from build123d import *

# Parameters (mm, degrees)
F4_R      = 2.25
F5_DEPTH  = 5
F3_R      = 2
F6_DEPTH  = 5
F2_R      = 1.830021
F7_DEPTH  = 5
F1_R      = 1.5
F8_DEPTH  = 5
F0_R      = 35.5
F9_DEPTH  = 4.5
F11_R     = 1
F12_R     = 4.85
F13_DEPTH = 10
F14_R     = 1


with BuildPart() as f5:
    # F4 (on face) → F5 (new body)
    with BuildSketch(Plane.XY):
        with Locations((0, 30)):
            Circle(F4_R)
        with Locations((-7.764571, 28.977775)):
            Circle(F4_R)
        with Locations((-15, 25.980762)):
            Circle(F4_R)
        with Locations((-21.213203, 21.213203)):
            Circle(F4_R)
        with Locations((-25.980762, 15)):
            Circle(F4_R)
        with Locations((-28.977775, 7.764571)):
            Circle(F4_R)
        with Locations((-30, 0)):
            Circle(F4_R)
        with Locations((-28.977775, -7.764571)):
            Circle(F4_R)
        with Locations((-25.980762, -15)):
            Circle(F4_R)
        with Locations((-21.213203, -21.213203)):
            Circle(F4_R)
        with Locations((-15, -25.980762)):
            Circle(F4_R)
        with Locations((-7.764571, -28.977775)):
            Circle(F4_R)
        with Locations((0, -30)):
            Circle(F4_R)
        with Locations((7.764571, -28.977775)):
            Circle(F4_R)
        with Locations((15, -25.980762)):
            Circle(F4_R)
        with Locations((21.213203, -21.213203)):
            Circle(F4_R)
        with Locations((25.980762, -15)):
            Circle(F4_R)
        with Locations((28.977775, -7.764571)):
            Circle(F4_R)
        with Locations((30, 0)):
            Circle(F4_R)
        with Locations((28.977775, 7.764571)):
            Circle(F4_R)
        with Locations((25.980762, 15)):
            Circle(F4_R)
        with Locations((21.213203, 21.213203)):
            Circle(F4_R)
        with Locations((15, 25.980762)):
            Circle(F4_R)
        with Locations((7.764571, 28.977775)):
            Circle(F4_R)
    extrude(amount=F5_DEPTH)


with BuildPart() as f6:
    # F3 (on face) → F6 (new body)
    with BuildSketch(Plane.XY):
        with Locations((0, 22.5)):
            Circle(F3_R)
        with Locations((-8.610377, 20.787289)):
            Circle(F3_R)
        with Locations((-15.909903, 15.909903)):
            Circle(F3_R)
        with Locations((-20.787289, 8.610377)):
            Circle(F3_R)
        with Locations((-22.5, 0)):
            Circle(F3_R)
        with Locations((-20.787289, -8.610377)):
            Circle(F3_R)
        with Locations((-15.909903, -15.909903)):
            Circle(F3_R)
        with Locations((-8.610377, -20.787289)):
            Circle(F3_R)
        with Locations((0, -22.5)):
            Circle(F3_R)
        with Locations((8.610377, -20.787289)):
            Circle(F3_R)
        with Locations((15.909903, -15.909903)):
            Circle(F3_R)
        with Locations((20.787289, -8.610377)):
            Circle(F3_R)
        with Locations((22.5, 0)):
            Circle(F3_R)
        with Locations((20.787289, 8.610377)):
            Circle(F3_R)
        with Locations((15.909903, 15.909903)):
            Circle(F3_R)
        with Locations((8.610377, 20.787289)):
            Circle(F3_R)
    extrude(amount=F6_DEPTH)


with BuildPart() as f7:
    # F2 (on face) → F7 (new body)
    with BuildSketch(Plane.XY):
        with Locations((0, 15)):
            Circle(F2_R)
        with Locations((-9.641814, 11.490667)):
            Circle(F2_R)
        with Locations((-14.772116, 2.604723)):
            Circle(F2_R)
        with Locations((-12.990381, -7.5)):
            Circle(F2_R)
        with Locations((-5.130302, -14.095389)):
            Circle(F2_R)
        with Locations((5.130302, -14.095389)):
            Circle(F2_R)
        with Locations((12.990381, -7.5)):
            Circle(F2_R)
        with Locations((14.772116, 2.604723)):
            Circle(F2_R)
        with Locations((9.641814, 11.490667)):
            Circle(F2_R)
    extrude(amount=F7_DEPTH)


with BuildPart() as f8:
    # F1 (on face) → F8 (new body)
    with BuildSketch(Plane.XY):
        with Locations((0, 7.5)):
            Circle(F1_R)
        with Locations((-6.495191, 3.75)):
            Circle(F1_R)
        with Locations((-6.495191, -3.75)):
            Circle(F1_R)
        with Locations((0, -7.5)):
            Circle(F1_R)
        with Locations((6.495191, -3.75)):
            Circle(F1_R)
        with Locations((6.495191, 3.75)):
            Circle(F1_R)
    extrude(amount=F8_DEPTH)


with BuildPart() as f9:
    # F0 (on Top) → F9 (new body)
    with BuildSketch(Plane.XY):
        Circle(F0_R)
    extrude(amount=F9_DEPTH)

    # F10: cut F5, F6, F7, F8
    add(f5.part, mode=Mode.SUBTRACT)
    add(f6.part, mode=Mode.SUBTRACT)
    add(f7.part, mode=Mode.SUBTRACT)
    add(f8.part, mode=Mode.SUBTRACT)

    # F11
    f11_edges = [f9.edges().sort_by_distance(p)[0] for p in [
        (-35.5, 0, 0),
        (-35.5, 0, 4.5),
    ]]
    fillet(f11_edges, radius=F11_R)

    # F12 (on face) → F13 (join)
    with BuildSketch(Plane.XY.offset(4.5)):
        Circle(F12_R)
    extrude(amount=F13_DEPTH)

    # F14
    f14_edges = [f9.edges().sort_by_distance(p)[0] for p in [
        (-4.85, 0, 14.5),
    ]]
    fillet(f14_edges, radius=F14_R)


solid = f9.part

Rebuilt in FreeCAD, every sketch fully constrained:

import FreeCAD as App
import Part
import Sketcher
Q = App.Units.Quantity


def edges_at(feature, points):
    """Names of the edges that pass closest to the given points."""
    edges = feature.Shape.Edges
    near = lambda p: min(range(len(edges)), key=lambda i: edges[i].distToShape(Part.Vertex(*p))[0])
    return sorted({f"Edge{near(p) + 1}" for p in points})

doc = App.newDocument("Part")
body = doc.addObject("PartDesign::Body", "Body")
body.AllowCompound = True

# Sketch on XY plane
sketch1 = body.newObject("Sketcher::SketchObject", "Sketch")
sketch1.AttachmentSupport = (doc.getObject("XY_Plane"), [""])
sketch1.MapMode = "FlatFace"
sketch1.addGeometry([
    Part.Circle(App.Vector(0, 30, 0), App.Vector(0, 0, 1), 2.2),  # 0
    Part.Circle(App.Vector(-7.8, 29, 0), App.Vector(0, 0, 1), 2.2),  # 1
    Part.Circle(App.Vector(-15, 26, 0), App.Vector(0, 0, 1), 2.2),  # 2
    Part.Circle(App.Vector(-21.2, 21.2, 0), App.Vector(0, 0, 1), 2.2),  # 3
    Part.Circle(App.Vector(-26, 15, 0), App.Vector(0, 0, 1), 2.2),  # 4
    Part.Circle(App.Vector(-29, 7.8, 0), App.Vector(0, 0, 1), 2.2),  # 5
    Part.Circle(App.Vector(-30, 0, 0), App.Vector(0, 0, 1), 2.2),  # 6
    Part.Circle(App.Vector(-29, -7.8, 0), App.Vector(0, 0, 1), 2.2),  # 7
    Part.Circle(App.Vector(-26, -15, 0), App.Vector(0, 0, 1), 2.2),  # 8
    Part.Circle(App.Vector(-21.2, -21.2, 0), App.Vector(0, 0, 1), 2.2),  # 9
    Part.Circle(App.Vector(-15, -26, 0), App.Vector(0, 0, 1), 2.2),  # 10
    Part.Circle(App.Vector(-7.8, -29, 0), App.Vector(0, 0, 1), 2.2),  # 11
    Part.Circle(App.Vector(0, -30, 0), App.Vector(0, 0, 1), 2.2),  # 12
    Part.Circle(App.Vector(7.8, -29, 0), App.Vector(0, 0, 1), 2.2),  # 13
    Part.Circle(App.Vector(15, -26, 0), App.Vector(0, 0, 1), 2.2),  # 14
    Part.Circle(App.Vector(21.2, -21.2, 0), App.Vector(0, 0, 1), 2.2),  # 15
    Part.Circle(App.Vector(26, -15, 0), App.Vector(0, 0, 1), 2.2),  # 16
    Part.Circle(App.Vector(29, -7.8, 0), App.Vector(0, 0, 1), 2.2),  # 17
    Part.Circle(App.Vector(30, 0, 0), App.Vector(0, 0, 1), 2.2),  # 18
    Part.Circle(App.Vector(29, 7.8, 0), App.Vector(0, 0, 1), 2.2),  # 19
    Part.Circle(App.Vector(26, 15, 0), App.Vector(0, 0, 1), 2.2),  # 20
    Part.Circle(App.Vector(21.2, 21.2, 0), App.Vector(0, 0, 1), 2.2),  # 21
    Part.Circle(App.Vector(15, 26, 0), App.Vector(0, 0, 1), 2.2),  # 22
    Part.Circle(App.Vector(7.8, 29, 0), App.Vector(0, 0, 1), 2.2),  # 23
], False)
sketch1.addConstraint([
    Sketcher.Constraint("Equal", 0, 1),
    Sketcher.Constraint("Equal", 1, 2),
    Sketcher.Constraint("Equal", 2, 3),
    Sketcher.Constraint("Equal", 3, 4),
    Sketcher.Constraint("Equal", 4, 5),
    Sketcher.Constraint("Equal", 5, 6),
    Sketcher.Constraint("Equal", 6, 7),
    Sketcher.Constraint("Equal", 7, 8),
    Sketcher.Constraint("Equal", 8, 9),
    Sketcher.Constraint("Equal", 9, 10),
    Sketcher.Constraint("Equal", 10, 11),
    Sketcher.Constraint("Equal", 11, 12),
    Sketcher.Constraint("Equal", 12, 13),
    Sketcher.Constraint("Equal", 13, 14),
    Sketcher.Constraint("Equal", 14, 15),
    Sketcher.Constraint("Equal", 15, 16),
    Sketcher.Constraint("Equal", 16, 17),
    Sketcher.Constraint("Equal", 17, 18),
    Sketcher.Constraint("Equal", 18, 19),
    Sketcher.Constraint("Equal", 19, 20),
    Sketcher.Constraint("Equal", 20, 21),
    Sketcher.Constraint("Equal", 21, 22),
    Sketcher.Constraint("Equal", 22, 23),
    Sketcher.Constraint("Symmetric", 0, 3, 12, 3, -1, 1),
    Sketcher.Constraint("Symmetric", 1, 3, 13, 3, -1, 1),
    Sketcher.Constraint("Symmetric", 2, 3, 14, 3, -1, 1),
    Sketcher.Constraint("Symmetric", 3, 3, 15, 3, -1, 1),
    Sketcher.Constraint("Symmetric", 4, 3, 16, 3, -1, 1),
    Sketcher.Constraint("Symmetric", 5, 3, 17, 3, -1, 1),
    Sketcher.Constraint("Symmetric", 6, 3, 18, 3, -1, 1),
    Sketcher.Constraint("Symmetric", 7, 3, 19, 3, -1, 1),
    Sketcher.Constraint("Symmetric", 8, 3, 20, 3, -1, 1),
    Sketcher.Constraint("Symmetric", 9, 3, 21, 3, -1, 1),
    Sketcher.Constraint("Symmetric", 10, 3, 22, 3, -1, 1),
    Sketcher.Constraint("Symmetric", 11, 3, 23, 3, -1, 1),
    Sketcher.Constraint("Symmetric", 11, 3, 13, 3, -2),
    Sketcher.Constraint("Symmetric", 10, 3, 14, 3, -2),
    Sketcher.Constraint("Symmetric", 9, 3, 15, 3, -2),
    Sketcher.Constraint("Symmetric", 8, 3, 16, 3, -2),
    Sketcher.Constraint("Symmetric", 7, 3, 17, 3, -2),
    Sketcher.Constraint("PointOnObject", 0, 3, -2),
    Sketcher.Constraint("PointOnObject", 6, 3, -1),
    Sketcher.Constraint("Diameter", 0, Q("4.5 mm")),
    Sketcher.Constraint("DistanceY", -1, 1, 0, 3, Q("30 mm")),
    Sketcher.Constraint("DistanceX", 2, 3, -1, 1, Q("15 mm")),
    Sketcher.Constraint("DistanceY", -1, 1, 4, 3, Q("15 mm")),
    Sketcher.Constraint("DistanceX", 6, 3, -1, 1, Q("30 mm")),
    Sketcher.Constraint("DistanceX", 1, 3, -1, 1, Q("7.764571 mm")),
    Sketcher.Constraint("DistanceY", -1, 1, 2, 3, Q("25.980762 mm")),
    Sketcher.Constraint("DistanceX", 4, 3, -1, 1, Q("25.980762 mm")),
    Sketcher.Constraint("DistanceY", -1, 1, 5, 3, Q("7.764571 mm")),
    Sketcher.Constraint("DistanceY", 3, 3, 2, 3, Q("4.767559 mm")),
    Sketcher.Constraint("DistanceX", 4, 3, 3, 3, Q("4.767559 mm")),
    Sketcher.Constraint("DistanceY", -1, 1, 1, 3, Q("28.977775 mm")),
    Sketcher.Constraint("DistanceX", 5, 3, -1, 1, Q("28.977775 mm")),
])
pad1 = body.newObject("PartDesign::Pad", "Pad")
pad1.Profile = sketch1
pad1.Length = 5
body2 = doc.addObject("PartDesign::Body", "Body001")
body2.AllowCompound = True

# Sketch on XY plane
sketch2 = body2.newObject("Sketcher::SketchObject", "Sketch001")
sketch2.AttachmentSupport = (doc.getObject("XY_Plane001"), [""])
sketch2.MapMode = "FlatFace"
sketch2.addGeometry([
    Part.Circle(App.Vector(0, 22.5, 0), App.Vector(0, 0, 1), 2),  # 0
    Part.Circle(App.Vector(-8.6, 20.8, 0), App.Vector(0, 0, 1), 2),  # 1
    Part.Circle(App.Vector(-15.9, 15.9, 0), App.Vector(0, 0, 1), 2),  # 2
    Part.Circle(App.Vector(-20.8, 8.6, 0), App.Vector(0, 0, 1), 2),  # 3
    Part.Circle(App.Vector(-22.5, 0, 0), App.Vector(0, 0, 1), 2),  # 4
    Part.Circle(App.Vector(-20.8, -8.6, 0), App.Vector(0, 0, 1), 2),  # 5
    Part.Circle(App.Vector(-15.9, -15.9, 0), App.Vector(0, 0, 1), 2),  # 6
    Part.Circle(App.Vector(-8.6, -20.8, 0), App.Vector(0, 0, 1), 2),  # 7
    Part.Circle(App.Vector(0, -22.5, 0), App.Vector(0, 0, 1), 2),  # 8
    Part.Circle(App.Vector(8.6, -20.8, 0), App.Vector(0, 0, 1), 2),  # 9
    Part.Circle(App.Vector(15.9, -15.9, 0), App.Vector(0, 0, 1), 2),  # 10
    Part.Circle(App.Vector(20.8, -8.6, 0), App.Vector(0, 0, 1), 2),  # 11
    Part.Circle(App.Vector(22.5, 0, 0), App.Vector(0, 0, 1), 2),  # 12
    Part.Circle(App.Vector(20.8, 8.6, 0), App.Vector(0, 0, 1), 2),  # 13
    Part.Circle(App.Vector(15.9, 15.9, 0), App.Vector(0, 0, 1), 2),  # 14
    Part.Circle(App.Vector(8.6, 20.8, 0), App.Vector(0, 0, 1), 2),  # 15
], False)
sketch2.addConstraint([
    Sketcher.Constraint("Equal", 0, 1),
    Sketcher.Constraint("Equal", 1, 2),
    Sketcher.Constraint("Equal", 2, 3),
    Sketcher.Constraint("Equal", 3, 4),
    Sketcher.Constraint("Equal", 4, 5),
    Sketcher.Constraint("Equal", 5, 6),
    Sketcher.Constraint("Equal", 6, 7),
    Sketcher.Constraint("Equal", 7, 8),
    Sketcher.Constraint("Equal", 8, 9),
    Sketcher.Constraint("Equal", 9, 10),
    Sketcher.Constraint("Equal", 10, 11),
    Sketcher.Constraint("Equal", 11, 12),
    Sketcher.Constraint("Equal", 12, 13),
    Sketcher.Constraint("Equal", 13, 14),
    Sketcher.Constraint("Equal", 14, 15),
    Sketcher.Constraint("Symmetric", 0, 3, 8, 3, -1, 1),
    Sketcher.Constraint("Symmetric", 1, 3, 9, 3, -1, 1),
    Sketcher.Constraint("Symmetric", 2, 3, 10, 3, -1, 1),
    Sketcher.Constraint("Symmetric", 3, 3, 11, 3, -1, 1),
    Sketcher.Constraint("Symmetric", 4, 3, 12, 3, -1, 1),
    Sketcher.Constraint("Symmetric", 5, 3, 13, 3, -1, 1),
    Sketcher.Constraint("Symmetric", 6, 3, 14, 3, -1, 1),
    Sketcher.Constraint("Symmetric", 7, 3, 15, 3, -1, 1),
    Sketcher.Constraint("Symmetric", 7, 3, 9, 3, -2),
    Sketcher.Constraint("Symmetric", 6, 3, 10, 3, -2),
    Sketcher.Constraint("Symmetric", 5, 3, 11, 3, -2),
    Sketcher.Constraint("PointOnObject", 0, 3, -2),
    Sketcher.Constraint("PointOnObject", 4, 3, -1),
    Sketcher.Constraint("Diameter", 0, Q("4 mm")),
    Sketcher.Constraint("DistanceY", -1, 1, 0, 3, Q("22.5 mm")),
    Sketcher.Constraint("DistanceX", 4, 3, -1, 1, Q("22.5 mm")),
    Sketcher.Constraint("DistanceY", -1, 1, 1, 3, Q("20.787289 mm")),
    Sketcher.Constraint("DistanceX", 3, 3, -1, 1, Q("20.787289 mm")),
    Sketcher.Constraint("DistanceY", 5, 3, 2, 3, Q("24.52028 mm")),
    Sketcher.Constraint("DistanceX", 6, 3, 9, 3, Q("24.52028 mm")),
    Sketcher.Constraint("DistanceX", 1, 3, -1, 1, Q("8.610377 mm")),
    Sketcher.Constraint("DistanceY", -1, 1, 2, 3, Q("15.909903 mm")),
])
pad2 = body2.newObject("PartDesign::Pad", "Pad001")
pad2.Profile = sketch2
pad2.Length = 5
body3 = doc.addObject("PartDesign::Body", "Body002")
body3.AllowCompound = True

# Sketch on XY plane
sketch3 = body3.newObject("Sketcher::SketchObject", "Sketch002")
sketch3.AttachmentSupport = (doc.getObject("XY_Plane002"), [""])
sketch3.MapMode = "FlatFace"
sketch3.addGeometry([
    Part.Circle(App.Vector(0, 15, 0), App.Vector(0, 0, 1), 1.8),  # 0
    Part.Circle(App.Vector(-9.6, 11.5, 0), App.Vector(0, 0, 1), 1.8),  # 1
    Part.Circle(App.Vector(-14.8, 2.6, 0), App.Vector(0, 0, 1), 1.8),  # 2
    Part.Circle(App.Vector(-13, -7.5, 0), App.Vector(0, 0, 1), 1.8),  # 3
    Part.Circle(App.Vector(-5.1, -14.1, 0), App.Vector(0, 0, 1), 1.8),  # 4
    Part.Circle(App.Vector(5.1, -14.1, 0), App.Vector(0, 0, 1), 1.8),  # 5
    Part.Circle(App.Vector(13, -7.5, 0), App.Vector(0, 0, 1), 1.8),  # 6
    Part.Circle(App.Vector(14.8, 2.6, 0), App.Vector(0, 0, 1), 1.8),  # 7
    Part.Circle(App.Vector(9.6, 11.5, 0), App.Vector(0, 0, 1), 1.8),  # 8
], False)
sketch3.addConstraint([
    Sketcher.Constraint("Equal", 0, 1),
    Sketcher.Constraint("Equal", 1, 2),
    Sketcher.Constraint("Equal", 2, 3),
    Sketcher.Constraint("Equal", 3, 4),
    Sketcher.Constraint("Equal", 4, 5),
    Sketcher.Constraint("Equal", 5, 6),
    Sketcher.Constraint("Equal", 6, 7),
    Sketcher.Constraint("Equal", 7, 8),
    Sketcher.Constraint("Symmetric", 4, 3, 5, 3, -2),
    Sketcher.Constraint("Symmetric", 3, 3, 6, 3, -2),
    Sketcher.Constraint("Symmetric", 2, 3, 7, 3, -2),
    Sketcher.Constraint("Symmetric", 1, 3, 8, 3, -2),
    Sketcher.Constraint("PointOnObject", 0, 3, -2),
    Sketcher.Constraint("DistanceY", -1, 1, 0, 3, Q("15 mm")),
    Sketcher.Constraint("DistanceY", 3, 3, -1, 1, Q("7.5 mm")),
    Sketcher.Constraint("Diameter", 0, Q("3.660042 mm")),
    Sketcher.Constraint("DistanceX", 3, 3, -1, 1, Q("12.990381 mm")),
    Sketcher.Constraint("DistanceY", 4, 3, -1, 1, Q("14.095389 mm")),
    Sketcher.Constraint("DistanceX", 3, 3, 4, 3, Q("7.860079 mm")),
    Sketcher.Constraint("DistanceX", 1, 3, 4, 3, Q("4.511512 mm")),
    Sketcher.Constraint("DistanceX", 2, 3, 5, 3, Q("19.902418 mm")),
    Sketcher.Constraint("DistanceY", -1, 1, 1, 3, Q("11.490667 mm")),
    Sketcher.Constraint("DistanceY", -1, 1, 2, 3, Q("2.604723 mm")),
])
pad3 = body3.newObject("PartDesign::Pad", "Pad002")
pad3.Profile = sketch3
pad3.Length = 5
body4 = doc.addObject("PartDesign::Body", "Body003")
body4.AllowCompound = True

# Sketch on XY plane
sketch4 = body4.newObject("Sketcher::SketchObject", "Sketch003")
sketch4.AttachmentSupport = (doc.getObject("XY_Plane003"), [""])
sketch4.MapMode = "FlatFace"
sketch4.addGeometry([
    Part.Circle(App.Vector(0, 7.5, 0), App.Vector(0, 0, 1), 1.5),  # 0
    Part.Circle(App.Vector(-6.5, 3.8, 0), App.Vector(0, 0, 1), 1.5),  # 1
    Part.Circle(App.Vector(-6.5, -3.8, 0), App.Vector(0, 0, 1), 1.5),  # 2
    Part.Circle(App.Vector(0, -7.5, 0), App.Vector(0, 0, 1), 1.5),  # 3
    Part.Circle(App.Vector(6.5, -3.8, 0), App.Vector(0, 0, 1), 1.5),  # 4
    Part.Circle(App.Vector(6.5, 3.8, 0), App.Vector(0, 0, 1), 1.5),  # 5
], False)
sketch4.addConstraint([
    Sketcher.Constraint("Equal", 0, 1),
    Sketcher.Constraint("Equal", 1, 2),
    Sketcher.Constraint("Equal", 2, 3),
    Sketcher.Constraint("Equal", 3, 4),
    Sketcher.Constraint("Equal", 4, 5),
    Sketcher.Constraint("Symmetric", 0, 3, 3, 3, -1, 1),
    Sketcher.Constraint("Symmetric", 1, 3, 4, 3, -1, 1),
    Sketcher.Constraint("Symmetric", 2, 3, 5, 3, -1, 1),
    Sketcher.Constraint("Symmetric", 2, 3, 4, 3, -2),
    Sketcher.Constraint("PointOnObject", 0, 3, -2),
    Sketcher.Constraint("Diameter", 0, Q("3 mm")),
    Sketcher.Constraint("DistanceY", 3, 3, 0, 3, Q("15 mm")),
    Sketcher.Constraint("DistanceY", 2, 3, 1, 3, Q("7.5 mm")),
    Sketcher.Constraint("DistanceX", 1, 3, -1, 1, Q("6.495191 mm")),
])
pad4 = body4.newObject("PartDesign::Pad", "Pad003")
pad4.Profile = sketch4
pad4.Length = 5
body5 = doc.addObject("PartDesign::Body", "Body004")

# Sketch on XY plane
sketch5 = body5.newObject("Sketcher::SketchObject", "Sketch004")
sketch5.AttachmentSupport = (doc.getObject("XY_Plane004"), [""])
sketch5.MapMode = "FlatFace"
sketch5.addGeometry(Part.Circle(App.Vector(0, 0, 0), App.Vector(0, 0, 1), 36), False)
sketch5.addConstraint([
    Sketcher.Constraint("Coincident", 0, 3, -1, 1),
    Sketcher.Constraint("Diameter", 0, Q("71 mm")),
])
pad5 = body5.newObject("PartDesign::Pad", "Pad004")
pad5.Profile = sketch5
pad5.Length = 4.5
doc.recompute()

boolean = body5.newObject("PartDesign::Boolean", "Boolean")
boolean.Type = "Cut"
boolean.addObjects([body])
doc.recompute()

boolean2 = body5.newObject("PartDesign::Boolean", "Boolean001")
boolean2.Type = "Cut"
boolean2.addObjects([body2])
doc.recompute()

boolean3 = body5.newObject("PartDesign::Boolean", "Boolean002")
boolean3.Type = "Cut"
boolean3.addObjects([body3])
doc.recompute()

boolean4 = body5.newObject("PartDesign::Boolean", "Boolean003")
boolean4.Type = "Cut"
boolean4.addObjects([body4])
doc.recompute()

fillet = body5.newObject("PartDesign::Fillet", "Fillet")
fillet.Base = (boolean4, edges_at(boolean4, [(-35.5, 0, 0), (-35.5, 0, 4.5)]))
fillet.Radius = 1

# Sketch on XY plane
sketch6 = body5.newObject("Sketcher::SketchObject", "Sketch005")
sketch6.AttachmentSupport = (doc.getObject("XY_Plane004"), [""])
sketch6.MapMode = "FlatFace"
sketch6.AttachmentOffset = App.Placement(App.Vector(0, 0, 4.5), App.Rotation())
sketch6.addGeometry(Part.Circle(App.Vector(0, 0, 0), App.Vector(0, 0, 1), 4.8), False)
sketch6.addConstraint([
    Sketcher.Constraint("Coincident", 0, 3, -1, 1),
    Sketcher.Constraint("Diameter", 0, Q("9.7 mm")),
])
pad6 = body5.newObject("PartDesign::Pad", "Pad005")
pad6.Profile = sketch6
pad6.Length = 10
doc.recompute()

fillet2 = body5.newObject("PartDesign::Fillet", "Fillet001")
fillet2.Base = (pad6, edges_at(pad6, [(-4.85, 0, 14.5)]))
fillet2.Radius = 1

doc.recompute()
